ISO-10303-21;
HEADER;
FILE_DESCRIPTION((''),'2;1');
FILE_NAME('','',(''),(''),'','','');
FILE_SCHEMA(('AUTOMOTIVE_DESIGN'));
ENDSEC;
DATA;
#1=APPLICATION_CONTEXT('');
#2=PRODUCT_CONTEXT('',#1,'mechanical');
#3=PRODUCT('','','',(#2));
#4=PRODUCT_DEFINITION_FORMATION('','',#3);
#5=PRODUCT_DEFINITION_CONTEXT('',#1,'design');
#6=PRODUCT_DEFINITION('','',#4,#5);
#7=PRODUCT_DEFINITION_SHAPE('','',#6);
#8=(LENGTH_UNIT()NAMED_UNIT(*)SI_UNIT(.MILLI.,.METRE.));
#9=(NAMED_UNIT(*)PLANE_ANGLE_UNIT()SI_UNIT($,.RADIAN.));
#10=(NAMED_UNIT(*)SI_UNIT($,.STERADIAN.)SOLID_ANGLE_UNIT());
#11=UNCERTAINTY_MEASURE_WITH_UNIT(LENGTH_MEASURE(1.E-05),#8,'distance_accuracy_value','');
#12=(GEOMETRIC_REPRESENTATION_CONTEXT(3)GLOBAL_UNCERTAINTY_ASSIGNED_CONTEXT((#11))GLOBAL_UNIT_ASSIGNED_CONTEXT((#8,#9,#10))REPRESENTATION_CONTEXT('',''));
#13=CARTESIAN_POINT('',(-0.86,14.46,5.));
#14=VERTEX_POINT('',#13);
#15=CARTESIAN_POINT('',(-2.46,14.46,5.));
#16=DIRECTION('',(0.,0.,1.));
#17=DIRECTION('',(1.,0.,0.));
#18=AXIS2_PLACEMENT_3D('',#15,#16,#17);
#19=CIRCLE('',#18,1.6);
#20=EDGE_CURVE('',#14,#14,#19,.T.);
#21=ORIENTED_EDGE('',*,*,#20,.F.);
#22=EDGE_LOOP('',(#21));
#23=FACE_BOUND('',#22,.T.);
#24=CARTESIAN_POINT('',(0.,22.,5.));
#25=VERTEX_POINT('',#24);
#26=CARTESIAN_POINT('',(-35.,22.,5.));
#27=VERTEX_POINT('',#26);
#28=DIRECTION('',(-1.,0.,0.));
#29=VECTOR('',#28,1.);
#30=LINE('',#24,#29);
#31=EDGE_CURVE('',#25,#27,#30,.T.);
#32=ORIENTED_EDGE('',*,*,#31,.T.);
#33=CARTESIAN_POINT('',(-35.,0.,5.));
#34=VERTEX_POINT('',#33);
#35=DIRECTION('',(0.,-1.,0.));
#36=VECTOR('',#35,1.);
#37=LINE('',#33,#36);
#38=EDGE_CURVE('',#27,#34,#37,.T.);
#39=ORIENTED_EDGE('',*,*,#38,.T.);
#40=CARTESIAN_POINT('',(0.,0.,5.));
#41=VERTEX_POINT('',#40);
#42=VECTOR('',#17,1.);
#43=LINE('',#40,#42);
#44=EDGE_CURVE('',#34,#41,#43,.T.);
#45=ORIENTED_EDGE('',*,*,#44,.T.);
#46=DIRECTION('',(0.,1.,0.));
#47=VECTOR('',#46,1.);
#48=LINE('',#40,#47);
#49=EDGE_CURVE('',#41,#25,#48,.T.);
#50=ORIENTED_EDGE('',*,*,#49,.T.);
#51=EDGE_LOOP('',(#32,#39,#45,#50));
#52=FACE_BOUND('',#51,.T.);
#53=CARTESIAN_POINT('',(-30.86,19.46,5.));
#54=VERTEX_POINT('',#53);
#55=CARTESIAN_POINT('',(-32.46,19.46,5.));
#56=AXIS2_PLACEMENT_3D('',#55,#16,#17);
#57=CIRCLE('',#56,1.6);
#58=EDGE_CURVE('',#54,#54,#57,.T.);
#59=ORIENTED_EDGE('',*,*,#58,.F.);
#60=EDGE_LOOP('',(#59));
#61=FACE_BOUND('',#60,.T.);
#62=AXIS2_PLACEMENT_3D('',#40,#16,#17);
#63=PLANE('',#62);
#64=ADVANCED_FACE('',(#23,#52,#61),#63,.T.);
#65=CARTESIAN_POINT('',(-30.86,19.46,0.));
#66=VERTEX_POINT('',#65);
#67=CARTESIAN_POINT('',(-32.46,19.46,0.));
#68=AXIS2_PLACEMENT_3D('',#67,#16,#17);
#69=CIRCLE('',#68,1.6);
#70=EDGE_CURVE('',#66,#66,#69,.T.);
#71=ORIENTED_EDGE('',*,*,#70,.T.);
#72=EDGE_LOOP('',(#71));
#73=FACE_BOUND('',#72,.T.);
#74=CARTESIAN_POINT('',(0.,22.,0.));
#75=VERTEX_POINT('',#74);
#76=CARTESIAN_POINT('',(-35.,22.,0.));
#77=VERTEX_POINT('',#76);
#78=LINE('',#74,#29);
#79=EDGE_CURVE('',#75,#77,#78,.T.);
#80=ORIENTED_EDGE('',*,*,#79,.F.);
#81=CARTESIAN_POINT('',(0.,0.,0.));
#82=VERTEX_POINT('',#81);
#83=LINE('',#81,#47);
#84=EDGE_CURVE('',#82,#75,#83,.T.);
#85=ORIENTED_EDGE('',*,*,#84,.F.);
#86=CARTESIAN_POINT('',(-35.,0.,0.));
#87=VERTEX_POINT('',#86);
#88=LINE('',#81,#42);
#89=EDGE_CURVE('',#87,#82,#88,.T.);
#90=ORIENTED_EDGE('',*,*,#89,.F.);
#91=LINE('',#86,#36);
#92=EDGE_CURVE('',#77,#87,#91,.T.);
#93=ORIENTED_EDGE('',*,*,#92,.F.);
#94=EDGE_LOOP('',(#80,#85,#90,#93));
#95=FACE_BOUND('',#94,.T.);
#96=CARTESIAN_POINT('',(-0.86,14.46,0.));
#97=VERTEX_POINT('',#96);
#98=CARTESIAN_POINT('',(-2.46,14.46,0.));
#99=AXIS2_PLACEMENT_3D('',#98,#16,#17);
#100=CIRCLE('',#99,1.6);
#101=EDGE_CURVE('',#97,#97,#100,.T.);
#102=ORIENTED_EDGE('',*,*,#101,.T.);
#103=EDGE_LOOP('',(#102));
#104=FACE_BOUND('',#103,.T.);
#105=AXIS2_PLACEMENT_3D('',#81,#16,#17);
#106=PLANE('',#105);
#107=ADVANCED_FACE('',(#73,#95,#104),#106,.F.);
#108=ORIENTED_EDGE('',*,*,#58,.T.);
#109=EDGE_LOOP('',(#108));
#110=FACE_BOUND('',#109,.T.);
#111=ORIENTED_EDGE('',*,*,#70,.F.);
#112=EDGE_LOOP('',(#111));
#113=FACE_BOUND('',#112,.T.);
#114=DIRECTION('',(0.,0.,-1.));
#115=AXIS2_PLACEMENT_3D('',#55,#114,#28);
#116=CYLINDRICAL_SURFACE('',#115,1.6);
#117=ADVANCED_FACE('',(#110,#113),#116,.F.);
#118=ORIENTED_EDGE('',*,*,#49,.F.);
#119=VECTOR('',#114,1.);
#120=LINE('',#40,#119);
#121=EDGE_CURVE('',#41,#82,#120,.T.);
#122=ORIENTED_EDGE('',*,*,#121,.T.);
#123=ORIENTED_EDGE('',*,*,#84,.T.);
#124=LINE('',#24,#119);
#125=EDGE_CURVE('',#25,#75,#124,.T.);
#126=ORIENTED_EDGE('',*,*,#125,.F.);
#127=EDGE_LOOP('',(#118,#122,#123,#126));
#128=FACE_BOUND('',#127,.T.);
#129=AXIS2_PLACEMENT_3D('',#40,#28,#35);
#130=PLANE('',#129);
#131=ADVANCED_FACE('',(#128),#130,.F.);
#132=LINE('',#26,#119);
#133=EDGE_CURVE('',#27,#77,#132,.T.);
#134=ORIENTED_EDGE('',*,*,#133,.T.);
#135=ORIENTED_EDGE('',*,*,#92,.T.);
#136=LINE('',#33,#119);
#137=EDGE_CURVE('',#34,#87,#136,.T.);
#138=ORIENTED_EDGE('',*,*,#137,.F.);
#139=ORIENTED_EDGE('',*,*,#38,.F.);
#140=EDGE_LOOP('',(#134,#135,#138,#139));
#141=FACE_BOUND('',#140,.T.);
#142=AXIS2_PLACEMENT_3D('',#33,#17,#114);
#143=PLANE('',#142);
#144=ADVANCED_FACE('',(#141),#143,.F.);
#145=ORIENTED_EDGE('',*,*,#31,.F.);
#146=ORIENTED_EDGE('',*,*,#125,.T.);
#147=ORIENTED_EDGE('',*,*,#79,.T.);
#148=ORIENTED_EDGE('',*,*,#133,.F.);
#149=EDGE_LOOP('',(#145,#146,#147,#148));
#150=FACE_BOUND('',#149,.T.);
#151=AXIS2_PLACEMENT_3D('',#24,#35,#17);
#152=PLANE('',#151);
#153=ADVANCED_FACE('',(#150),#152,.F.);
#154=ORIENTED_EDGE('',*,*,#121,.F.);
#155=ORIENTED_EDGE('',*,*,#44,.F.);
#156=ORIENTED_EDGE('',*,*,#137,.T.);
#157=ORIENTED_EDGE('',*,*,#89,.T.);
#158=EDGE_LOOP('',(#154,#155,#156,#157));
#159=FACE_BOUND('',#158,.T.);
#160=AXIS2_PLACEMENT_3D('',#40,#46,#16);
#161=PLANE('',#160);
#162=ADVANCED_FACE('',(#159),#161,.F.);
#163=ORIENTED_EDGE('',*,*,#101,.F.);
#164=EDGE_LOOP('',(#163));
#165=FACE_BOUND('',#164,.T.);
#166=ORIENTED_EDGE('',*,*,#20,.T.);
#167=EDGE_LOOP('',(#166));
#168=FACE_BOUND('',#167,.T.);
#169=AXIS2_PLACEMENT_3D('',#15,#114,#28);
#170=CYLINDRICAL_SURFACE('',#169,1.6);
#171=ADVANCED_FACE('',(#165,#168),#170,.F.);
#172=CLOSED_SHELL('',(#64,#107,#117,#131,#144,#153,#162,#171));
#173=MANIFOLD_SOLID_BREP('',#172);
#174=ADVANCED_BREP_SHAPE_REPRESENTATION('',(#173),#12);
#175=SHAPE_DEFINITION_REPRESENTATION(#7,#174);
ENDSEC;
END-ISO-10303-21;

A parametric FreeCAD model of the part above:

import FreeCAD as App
import Part
import Sketcher

V = App.Vector
Q = App.Units.Quantity


def add_polygon(sketch, points):
    """Adds a closed chain of lines whose ends are joined by coincident constraints."""
    first, n = sketch.GeometryCount, len(points)
    for a, b in zip(points, points[1:] + points[:1]):
        sketch.addGeometry(Part.LineSegment(App.Vector(*a, 0), App.Vector(*b, 0)), False)
    for i in range(n):
        sketch.addConstraint(Sketcher.Constraint("Coincident", first + i, 2, first + (i + 1) % n, 1))

doc = App.newDocument("Part")
body = doc.addObject("PartDesign::Body", "Body")

sketch1 = body.newObject("Sketcher::SketchObject", "Sketch")
sketch1.AttachmentSupport = (doc.getObject("XY_Plane"), [""])
sketch1.MapMode = "FlatFace"
add_polygon(sketch1, [(-35, 22), (-35, 0), (0, 0), (0, 22)])
sketch1.addGeometry(Part.Circle(V(-2.46, 14.46, 0), V(0, 0, 1), 1.6), False)
sketch1.addGeometry(Part.Circle(V(-32.46, 19.46, 0), V(0, 0, 1), 1.6), False)
sketch1.addConstraint(Sketcher.Constraint("Vertical", 0))
sketch1.addConstraint(Sketcher.Constraint("Horizontal", 1))
sketch1.addConstraint(Sketcher.Constraint("Vertical", 2))
sketch1.addConstraint(Sketcher.Constraint("Horizontal", 3))
sketch1.addConstraint(Sketcher.Constraint("Coincident", 1, 2, -1, 1))
sketch1.addConstraint(Sketcher.Constraint("Equal", 4, 5))
sketch1.addConstraint(Sketcher.Constraint("Diameter", 4, Q("3.2 mm")))
sketch1.addConstraint(Sketcher.Constraint("DistanceX", 1, 1, 1, 2, Q("35 mm")))
sketch1.addConstraint(Sketcher.Constraint("DistanceY", 0, 2, 0, 1, Q("22 mm")))
sketch1.addConstraint(Sketcher.Constraint("DistanceX", 5, 3, 4, 3, Q("30 mm")))
sketch1.addConstraint(Sketcher.Constraint("DistanceY", 4, 3, 5, 3, Q("5 mm")))
sketch1.addConstraint(Sketcher.Constraint("DistanceX", 4, 3, -1, 1, Q("2.46 mm")))
sketch1.addConstraint(Sketcher.Constraint("DistanceY", -1, 1, 4, 3, Q("14.46 mm")))
pad1 = body.newObject("PartDesign::Pad", "Pad")
pad1.Profile = sketch1
pad1.Length = 5

doc.recompute()
